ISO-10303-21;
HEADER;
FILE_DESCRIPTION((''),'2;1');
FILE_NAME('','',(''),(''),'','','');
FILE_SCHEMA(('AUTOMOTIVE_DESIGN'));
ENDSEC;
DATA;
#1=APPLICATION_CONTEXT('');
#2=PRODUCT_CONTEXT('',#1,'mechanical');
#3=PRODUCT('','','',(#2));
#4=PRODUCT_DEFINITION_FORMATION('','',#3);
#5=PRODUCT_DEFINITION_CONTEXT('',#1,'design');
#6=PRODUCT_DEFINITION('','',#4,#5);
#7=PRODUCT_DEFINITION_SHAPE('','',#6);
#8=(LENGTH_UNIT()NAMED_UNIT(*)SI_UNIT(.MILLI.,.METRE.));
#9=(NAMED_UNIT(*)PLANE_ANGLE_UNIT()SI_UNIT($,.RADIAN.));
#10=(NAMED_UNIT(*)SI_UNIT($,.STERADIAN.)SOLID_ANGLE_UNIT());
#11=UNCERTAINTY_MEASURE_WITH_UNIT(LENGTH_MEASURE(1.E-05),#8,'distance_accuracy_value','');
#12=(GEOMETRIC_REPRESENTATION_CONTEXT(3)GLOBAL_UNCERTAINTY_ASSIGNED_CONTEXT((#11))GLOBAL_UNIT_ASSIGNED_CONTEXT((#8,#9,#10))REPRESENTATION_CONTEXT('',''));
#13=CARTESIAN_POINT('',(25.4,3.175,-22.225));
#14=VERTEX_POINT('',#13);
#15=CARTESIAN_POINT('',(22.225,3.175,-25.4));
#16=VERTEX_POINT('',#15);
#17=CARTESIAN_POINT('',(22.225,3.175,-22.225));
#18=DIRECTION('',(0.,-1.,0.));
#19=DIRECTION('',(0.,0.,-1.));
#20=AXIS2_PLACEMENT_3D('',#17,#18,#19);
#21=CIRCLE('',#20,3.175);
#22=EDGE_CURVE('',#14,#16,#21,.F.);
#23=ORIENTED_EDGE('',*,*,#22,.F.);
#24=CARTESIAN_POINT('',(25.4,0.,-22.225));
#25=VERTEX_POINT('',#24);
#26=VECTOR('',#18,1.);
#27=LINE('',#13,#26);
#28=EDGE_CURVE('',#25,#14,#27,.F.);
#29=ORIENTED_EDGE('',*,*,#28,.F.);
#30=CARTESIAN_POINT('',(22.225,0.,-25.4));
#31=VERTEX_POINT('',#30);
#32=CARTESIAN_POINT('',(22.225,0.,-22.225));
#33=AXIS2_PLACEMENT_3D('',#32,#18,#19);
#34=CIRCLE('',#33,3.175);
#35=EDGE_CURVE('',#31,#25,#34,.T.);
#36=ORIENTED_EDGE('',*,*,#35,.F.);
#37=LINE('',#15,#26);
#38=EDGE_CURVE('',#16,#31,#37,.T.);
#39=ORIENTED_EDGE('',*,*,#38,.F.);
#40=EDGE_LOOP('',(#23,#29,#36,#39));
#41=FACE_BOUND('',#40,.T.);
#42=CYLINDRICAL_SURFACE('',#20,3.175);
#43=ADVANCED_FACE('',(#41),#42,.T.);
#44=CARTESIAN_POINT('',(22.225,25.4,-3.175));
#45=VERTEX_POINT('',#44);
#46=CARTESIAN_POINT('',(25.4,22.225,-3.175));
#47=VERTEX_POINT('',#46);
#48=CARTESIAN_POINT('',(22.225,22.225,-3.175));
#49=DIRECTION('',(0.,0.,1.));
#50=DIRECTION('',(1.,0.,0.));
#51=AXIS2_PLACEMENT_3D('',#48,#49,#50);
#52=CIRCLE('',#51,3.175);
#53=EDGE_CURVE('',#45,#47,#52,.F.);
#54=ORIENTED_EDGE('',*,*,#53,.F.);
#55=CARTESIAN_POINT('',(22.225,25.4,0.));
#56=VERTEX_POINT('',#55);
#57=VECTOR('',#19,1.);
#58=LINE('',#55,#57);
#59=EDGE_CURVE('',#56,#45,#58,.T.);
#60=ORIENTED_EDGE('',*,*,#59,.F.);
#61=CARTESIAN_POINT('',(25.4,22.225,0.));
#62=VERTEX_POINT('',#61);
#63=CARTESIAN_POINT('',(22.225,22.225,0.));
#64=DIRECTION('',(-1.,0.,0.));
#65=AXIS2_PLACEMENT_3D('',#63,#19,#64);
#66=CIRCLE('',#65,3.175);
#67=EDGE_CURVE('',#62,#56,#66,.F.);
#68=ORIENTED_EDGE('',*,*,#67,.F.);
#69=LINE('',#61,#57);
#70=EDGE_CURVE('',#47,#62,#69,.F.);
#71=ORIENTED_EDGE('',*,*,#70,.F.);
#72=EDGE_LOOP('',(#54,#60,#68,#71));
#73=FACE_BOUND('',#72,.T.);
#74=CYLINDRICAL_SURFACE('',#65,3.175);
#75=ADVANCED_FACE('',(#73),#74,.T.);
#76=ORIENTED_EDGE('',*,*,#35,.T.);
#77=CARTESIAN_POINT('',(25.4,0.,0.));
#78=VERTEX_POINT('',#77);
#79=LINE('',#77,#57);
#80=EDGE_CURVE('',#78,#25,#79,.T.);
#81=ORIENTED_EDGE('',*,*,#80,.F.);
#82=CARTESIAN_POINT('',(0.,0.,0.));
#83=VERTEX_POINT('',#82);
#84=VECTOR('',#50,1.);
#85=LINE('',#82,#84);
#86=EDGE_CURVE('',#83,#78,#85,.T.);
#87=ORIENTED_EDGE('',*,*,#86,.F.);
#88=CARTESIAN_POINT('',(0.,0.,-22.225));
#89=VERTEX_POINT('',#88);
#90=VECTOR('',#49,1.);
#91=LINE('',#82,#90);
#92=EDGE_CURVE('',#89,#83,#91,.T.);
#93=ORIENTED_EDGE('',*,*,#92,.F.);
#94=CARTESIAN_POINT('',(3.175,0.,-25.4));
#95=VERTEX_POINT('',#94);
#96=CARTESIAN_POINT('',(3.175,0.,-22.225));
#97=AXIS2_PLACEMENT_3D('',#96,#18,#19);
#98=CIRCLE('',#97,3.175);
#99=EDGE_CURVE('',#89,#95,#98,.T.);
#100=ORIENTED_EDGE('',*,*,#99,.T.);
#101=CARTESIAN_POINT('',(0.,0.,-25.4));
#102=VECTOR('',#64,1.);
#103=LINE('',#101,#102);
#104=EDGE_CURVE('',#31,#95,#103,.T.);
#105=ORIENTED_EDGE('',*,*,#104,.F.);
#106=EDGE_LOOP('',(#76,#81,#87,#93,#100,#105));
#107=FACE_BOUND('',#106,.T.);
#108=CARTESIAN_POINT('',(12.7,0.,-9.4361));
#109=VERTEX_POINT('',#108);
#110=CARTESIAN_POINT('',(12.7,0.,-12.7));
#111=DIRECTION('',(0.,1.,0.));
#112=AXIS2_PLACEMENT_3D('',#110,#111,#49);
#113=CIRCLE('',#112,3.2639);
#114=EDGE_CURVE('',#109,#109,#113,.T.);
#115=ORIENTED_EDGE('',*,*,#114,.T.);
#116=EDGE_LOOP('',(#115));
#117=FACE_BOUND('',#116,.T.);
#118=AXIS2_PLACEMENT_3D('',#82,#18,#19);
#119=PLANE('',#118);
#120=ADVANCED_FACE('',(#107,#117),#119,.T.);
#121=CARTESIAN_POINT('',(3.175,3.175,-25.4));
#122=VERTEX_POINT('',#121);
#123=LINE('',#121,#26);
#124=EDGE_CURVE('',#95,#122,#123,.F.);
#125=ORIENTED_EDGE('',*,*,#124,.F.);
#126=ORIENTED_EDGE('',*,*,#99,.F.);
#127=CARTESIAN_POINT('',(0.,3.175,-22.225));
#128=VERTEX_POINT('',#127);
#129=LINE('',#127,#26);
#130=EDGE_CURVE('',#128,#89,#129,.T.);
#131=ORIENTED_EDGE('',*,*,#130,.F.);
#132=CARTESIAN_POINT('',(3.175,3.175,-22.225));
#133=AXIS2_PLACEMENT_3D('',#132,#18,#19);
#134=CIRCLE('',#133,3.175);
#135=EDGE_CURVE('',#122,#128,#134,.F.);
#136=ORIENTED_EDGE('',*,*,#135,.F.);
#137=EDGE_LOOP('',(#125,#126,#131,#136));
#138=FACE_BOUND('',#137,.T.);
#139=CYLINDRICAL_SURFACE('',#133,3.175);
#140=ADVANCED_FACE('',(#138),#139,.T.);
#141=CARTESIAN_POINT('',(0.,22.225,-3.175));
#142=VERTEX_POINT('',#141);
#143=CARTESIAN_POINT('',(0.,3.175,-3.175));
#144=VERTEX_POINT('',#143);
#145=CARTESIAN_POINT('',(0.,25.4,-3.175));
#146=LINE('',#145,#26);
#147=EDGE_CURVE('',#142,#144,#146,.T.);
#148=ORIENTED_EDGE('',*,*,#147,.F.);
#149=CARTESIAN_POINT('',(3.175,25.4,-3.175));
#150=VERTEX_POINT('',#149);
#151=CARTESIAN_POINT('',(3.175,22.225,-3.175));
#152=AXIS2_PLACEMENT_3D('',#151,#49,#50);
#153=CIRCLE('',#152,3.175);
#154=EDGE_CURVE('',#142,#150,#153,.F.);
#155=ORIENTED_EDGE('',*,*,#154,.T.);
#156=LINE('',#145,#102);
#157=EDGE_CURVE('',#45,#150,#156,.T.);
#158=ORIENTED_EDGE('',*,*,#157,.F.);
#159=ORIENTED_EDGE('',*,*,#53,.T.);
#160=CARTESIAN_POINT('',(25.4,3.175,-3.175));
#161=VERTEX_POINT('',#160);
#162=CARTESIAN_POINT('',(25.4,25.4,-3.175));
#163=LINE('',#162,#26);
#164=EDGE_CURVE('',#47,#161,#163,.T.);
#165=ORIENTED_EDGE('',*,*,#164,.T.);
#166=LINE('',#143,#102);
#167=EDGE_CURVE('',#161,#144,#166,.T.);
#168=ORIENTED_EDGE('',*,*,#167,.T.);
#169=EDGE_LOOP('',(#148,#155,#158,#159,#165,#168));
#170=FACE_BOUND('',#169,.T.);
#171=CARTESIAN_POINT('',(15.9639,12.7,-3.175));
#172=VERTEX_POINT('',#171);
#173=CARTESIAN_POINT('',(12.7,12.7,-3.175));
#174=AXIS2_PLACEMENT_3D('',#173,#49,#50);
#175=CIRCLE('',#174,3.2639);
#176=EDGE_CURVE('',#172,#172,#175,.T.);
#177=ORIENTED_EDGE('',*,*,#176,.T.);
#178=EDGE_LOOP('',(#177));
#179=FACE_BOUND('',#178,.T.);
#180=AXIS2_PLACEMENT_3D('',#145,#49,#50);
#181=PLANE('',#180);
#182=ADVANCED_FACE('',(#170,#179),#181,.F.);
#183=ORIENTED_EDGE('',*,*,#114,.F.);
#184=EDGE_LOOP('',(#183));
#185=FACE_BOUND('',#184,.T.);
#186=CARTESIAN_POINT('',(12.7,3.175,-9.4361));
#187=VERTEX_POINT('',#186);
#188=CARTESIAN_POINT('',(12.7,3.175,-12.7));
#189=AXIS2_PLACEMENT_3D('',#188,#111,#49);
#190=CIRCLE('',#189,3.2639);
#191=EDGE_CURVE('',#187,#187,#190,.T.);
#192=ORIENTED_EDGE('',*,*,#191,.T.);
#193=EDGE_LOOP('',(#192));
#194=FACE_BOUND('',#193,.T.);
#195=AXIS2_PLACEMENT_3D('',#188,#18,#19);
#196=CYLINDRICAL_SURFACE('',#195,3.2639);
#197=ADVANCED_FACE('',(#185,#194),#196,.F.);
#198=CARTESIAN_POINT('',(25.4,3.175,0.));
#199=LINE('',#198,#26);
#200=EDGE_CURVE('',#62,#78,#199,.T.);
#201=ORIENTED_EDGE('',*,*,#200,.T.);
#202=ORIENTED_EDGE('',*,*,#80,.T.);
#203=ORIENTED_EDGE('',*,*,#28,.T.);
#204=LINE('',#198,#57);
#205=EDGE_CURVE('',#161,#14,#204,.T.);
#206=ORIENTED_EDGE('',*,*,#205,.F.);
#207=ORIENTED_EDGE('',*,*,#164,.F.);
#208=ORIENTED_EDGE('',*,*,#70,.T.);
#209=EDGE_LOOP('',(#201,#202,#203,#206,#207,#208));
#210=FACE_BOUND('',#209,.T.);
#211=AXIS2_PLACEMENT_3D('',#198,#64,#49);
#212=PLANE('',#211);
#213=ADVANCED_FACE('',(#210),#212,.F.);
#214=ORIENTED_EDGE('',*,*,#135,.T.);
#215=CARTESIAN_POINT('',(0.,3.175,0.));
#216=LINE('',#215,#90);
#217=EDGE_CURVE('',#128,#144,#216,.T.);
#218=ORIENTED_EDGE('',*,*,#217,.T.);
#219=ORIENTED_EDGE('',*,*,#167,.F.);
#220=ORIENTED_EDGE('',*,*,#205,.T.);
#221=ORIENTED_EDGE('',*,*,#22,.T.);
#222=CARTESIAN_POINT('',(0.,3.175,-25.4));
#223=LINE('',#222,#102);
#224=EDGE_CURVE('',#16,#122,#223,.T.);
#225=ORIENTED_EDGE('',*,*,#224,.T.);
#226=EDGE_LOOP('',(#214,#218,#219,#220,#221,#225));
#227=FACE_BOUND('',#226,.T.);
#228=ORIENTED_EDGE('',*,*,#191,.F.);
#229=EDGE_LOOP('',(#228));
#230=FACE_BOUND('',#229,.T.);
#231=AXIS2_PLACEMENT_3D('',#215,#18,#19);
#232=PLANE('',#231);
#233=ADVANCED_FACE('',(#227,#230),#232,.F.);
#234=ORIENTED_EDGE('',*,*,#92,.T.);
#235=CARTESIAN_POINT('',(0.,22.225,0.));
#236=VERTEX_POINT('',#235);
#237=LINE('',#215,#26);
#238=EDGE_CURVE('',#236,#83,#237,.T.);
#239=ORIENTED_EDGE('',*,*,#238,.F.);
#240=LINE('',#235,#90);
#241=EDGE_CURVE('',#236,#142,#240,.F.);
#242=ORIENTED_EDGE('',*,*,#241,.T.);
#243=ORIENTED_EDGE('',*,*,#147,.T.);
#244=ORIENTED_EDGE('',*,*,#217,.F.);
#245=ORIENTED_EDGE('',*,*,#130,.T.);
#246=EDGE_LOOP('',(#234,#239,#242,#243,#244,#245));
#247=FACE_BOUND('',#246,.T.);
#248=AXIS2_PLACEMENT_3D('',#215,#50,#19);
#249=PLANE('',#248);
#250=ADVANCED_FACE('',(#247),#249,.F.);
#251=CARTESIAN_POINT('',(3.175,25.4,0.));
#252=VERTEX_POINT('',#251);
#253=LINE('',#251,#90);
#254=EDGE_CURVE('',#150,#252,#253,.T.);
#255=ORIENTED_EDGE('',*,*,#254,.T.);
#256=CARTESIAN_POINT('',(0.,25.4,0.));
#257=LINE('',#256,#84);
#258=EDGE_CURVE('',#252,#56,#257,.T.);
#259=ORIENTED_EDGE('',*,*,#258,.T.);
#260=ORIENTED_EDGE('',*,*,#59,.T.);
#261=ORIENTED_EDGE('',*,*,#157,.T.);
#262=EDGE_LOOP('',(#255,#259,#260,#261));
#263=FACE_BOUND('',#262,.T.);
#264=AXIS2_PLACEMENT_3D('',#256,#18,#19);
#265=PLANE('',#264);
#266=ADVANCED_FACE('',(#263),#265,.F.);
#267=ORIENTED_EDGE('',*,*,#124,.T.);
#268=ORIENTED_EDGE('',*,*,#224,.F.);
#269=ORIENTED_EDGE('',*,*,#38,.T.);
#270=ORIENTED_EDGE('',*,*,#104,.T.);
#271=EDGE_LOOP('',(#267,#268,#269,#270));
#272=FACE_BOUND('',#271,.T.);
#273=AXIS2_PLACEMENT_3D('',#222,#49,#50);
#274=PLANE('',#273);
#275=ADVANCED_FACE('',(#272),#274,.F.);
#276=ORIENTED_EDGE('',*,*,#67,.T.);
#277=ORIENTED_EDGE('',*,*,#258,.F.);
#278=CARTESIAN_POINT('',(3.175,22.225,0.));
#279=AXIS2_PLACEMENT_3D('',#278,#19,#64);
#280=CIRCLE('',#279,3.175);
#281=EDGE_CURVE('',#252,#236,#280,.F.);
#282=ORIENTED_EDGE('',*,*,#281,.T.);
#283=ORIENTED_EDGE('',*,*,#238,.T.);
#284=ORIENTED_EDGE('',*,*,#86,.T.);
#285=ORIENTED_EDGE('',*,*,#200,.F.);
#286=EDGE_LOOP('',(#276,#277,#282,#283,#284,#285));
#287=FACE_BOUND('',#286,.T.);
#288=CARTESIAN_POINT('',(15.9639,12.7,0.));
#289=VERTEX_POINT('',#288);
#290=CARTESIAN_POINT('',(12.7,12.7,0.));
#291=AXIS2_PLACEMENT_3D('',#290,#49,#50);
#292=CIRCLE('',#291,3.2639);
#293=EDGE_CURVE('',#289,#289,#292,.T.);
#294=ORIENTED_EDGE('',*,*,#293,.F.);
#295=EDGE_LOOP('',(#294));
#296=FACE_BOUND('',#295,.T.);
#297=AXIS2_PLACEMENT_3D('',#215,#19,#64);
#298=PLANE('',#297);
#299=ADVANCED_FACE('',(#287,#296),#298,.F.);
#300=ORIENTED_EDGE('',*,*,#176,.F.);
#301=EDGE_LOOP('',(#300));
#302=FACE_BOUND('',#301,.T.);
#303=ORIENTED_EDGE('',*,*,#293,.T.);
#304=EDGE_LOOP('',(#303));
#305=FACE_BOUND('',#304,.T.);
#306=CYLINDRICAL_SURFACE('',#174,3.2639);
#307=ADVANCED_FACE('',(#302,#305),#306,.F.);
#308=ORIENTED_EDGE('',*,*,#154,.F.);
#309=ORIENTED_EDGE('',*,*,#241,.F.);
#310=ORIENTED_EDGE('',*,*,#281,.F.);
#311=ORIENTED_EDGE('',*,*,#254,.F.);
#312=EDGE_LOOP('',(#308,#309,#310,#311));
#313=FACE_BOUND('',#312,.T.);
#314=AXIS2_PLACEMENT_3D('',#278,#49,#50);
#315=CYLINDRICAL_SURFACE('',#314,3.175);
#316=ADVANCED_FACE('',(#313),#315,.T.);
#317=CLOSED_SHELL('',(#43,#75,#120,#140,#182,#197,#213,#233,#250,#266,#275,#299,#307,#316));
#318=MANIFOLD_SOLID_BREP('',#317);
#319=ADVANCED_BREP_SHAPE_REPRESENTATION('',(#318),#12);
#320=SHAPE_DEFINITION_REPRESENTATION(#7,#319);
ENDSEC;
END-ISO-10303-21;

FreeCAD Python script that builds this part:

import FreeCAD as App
import Part
import Sketcher
from FreeCAD import Vector
Q = App.Units.Quantity


def edges_at(feature, points):
    """Names of the edges that pass closest to the given points."""
    edges = feature.Shape.Edges
    near = lambda p: min(range(len(edges)), key=lambda i: edges[i].distToShape(Part.Vertex(*p))[0])
    return sorted({f"Edge{near(p) + 1}" for p in points})

doc = App.newDocument("Part")
body = doc.addObject("PartDesign::Body", "Body")

# Sketch on XZ plane
sketch1 = doc.addObject("Sketcher::SketchObject", "Sketch")
body.addObject(sketch1)
sketch1.AttachmentSupport = (doc.XZ_Plane, [""])
sketch1.MapMode = "FlatFace"
sketch1.addGeometry(Part.LineSegment(Vector(0, -25.4, 0), Vector(0, 0, 0)), False)
sketch1.addGeometry(Part.LineSegment(Vector(0, 0, 0), Vector(25.4, 0, 0)), False)
sketch1.addGeometry(Part.LineSegment(Vector(25.4, 0, 0), Vector(25.4, -25.4, 0)), False)
sketch1.addGeometry(Part.LineSegment(Vector(25.4, -25.4, 0), Vector(0, -25.4, 0)), False)
sketch1.addGeometry(Part.Circle(Vector(12.7, -12.7, 0), Vector(0, 0, 1), 3.3), False)
sketch1.addConstraint(Sketcher.Constraint("Coincident", 0, 2, 1, 1))
sketch1.addConstraint(Sketcher.Constraint("Coincident", 1, 2, 2, 1))
sketch1.addConstraint(Sketcher.Constraint("Coincident", 2, 2, 3, 1))
sketch1.addConstraint(Sketcher.Constraint("Coincident", 3, 2, 0, 1))
sketch1.addConstraint(Sketcher.Constraint("Vertical", 0))
sketch1.addConstraint(Sketcher.Constraint("Horizontal", 1))
sketch1.addConstraint(Sketcher.Constraint("Vertical", 2))
sketch1.addConstraint(Sketcher.Constraint("Horizontal", 3))
sketch1.addConstraint(Sketcher.Constraint("Coincident", 0, 2, -1, 1))
sketch1.addConstraint(Sketcher.Constraint("Equal", 3, 0))
sketch1.addConstraint(Sketcher.Constraint("DistanceX", 1, 1, 1, 2, Q("1 in")))
sketch1.addConstraint(Sketcher.Constraint("Diameter", 4, Q("0.257 in")))
sketch1.addConstraint(Sketcher.Constraint("DistanceX", -1, 1, 4, 3, Q("0.5 in")))
sketch1.addConstraint(Sketcher.Constraint("DistanceY", 4, 3, -1, 1, Q("0.5 in")))
pad1 = doc.addObject("PartDesign::Pad", "Pad")
body.addObject(pad1)
pad1.Profile = sketch1
pad1.Length = Q("0.125 in")
pad1.Reversed = True

# Sketch on XZ plane
sketch2 = doc.addObject("Sketcher::SketchObject", "Sketch001")
body.addObject(sketch2)
sketch2.AttachmentSupport = (doc.XZ_Plane, [""])
sketch2.MapMode = "FlatFace"
sketch2.AttachmentOffset = App.Placement(Vector(0, 0, -0.125 * 25.4), App.Rotation())
sketch2.addGeometry(Part.LineSegment(Vector(0, -3.2, 0), Vector(0, 0, 0)), False)
sketch2.addGeometry(Part.LineSegment(Vector(0, 0, 0), Vector(25.4, 0, 0)), False)
sketch2.addGeometry(Part.LineSegment(Vector(25.4, 0, 0), Vector(25.4, -3.2, 0)), False)
sketch2.addGeometry(Part.LineSegment(Vector(25.4, -3.2, 0), Vector(0, -3.2, 0)), False)
sketch2.addConstraint(Sketcher.Constraint("Coincident", 0, 2, 1, 1))
sketch2.addConstraint(Sketcher.Constraint("Coincident", 1, 2, 2, 1))
sketch2.addConstraint(Sketcher.Constraint("Coincident", 2, 2, 3, 1))
sketch2.addConstraint(Sketcher.Constraint("Coincident", 3, 2, 0, 1))
sketch2.addConstraint(Sketcher.Constraint("Vertical", 0))
sketch2.addConstraint(Sketcher.Constraint("Horizontal", 1))
sketch2.addConstraint(Sketcher.Constraint("Vertical", 2))
sketch2.addConstraint(Sketcher.Constraint("Horizontal", 3))
sketch2.addConstraint(Sketcher.Constraint("Coincident", 0, 2, -1, 1))
sketch2.addConstraint(Sketcher.Constraint("DistanceX", 1, 1, 1, 2, Q("1 in")))
sketch2.addConstraint(Sketcher.Constraint("DistanceY", 0, 1, 0, 2, Q("0.125 in")))
pad2 = doc.addObject("PartDesign::Pad", "Pad001")
body.addObject(pad2)
pad2.Profile = sketch2
pad2.Length = Q("0.875 in")
pad2.Reversed = True

# Sketch on XY plane
sketch3 = doc.addObject("Sketcher::SketchObject", "Sketch002")
body.addObject(sketch3)
sketch3.AttachmentSupport = (doc.XY_Plane, [""])
sketch3.MapMode = "FlatFace"
sketch3.addGeometry(Part.Circle(Vector(12.7, 12.7, 0), Vector(0, 0, 1), 3.3), False)
sketch3.addConstraint(Sketcher.Constraint("Diameter", 0, Q("0.257 in")))
sketch3.addConstraint(Sketcher.Constraint("DistanceX", -1, 1, 0, 3, Q("0.5 in")))
sketch3.addConstraint(Sketcher.Constraint("DistanceY", -1, 1, 0, 3, Q("0.5 in")))
pocket1 = doc.addObject("PartDesign::Pocket", "Pocket")
body.addObject(pocket1)
pocket1.Profile = sketch3
pocket1.Length = Q("0.125 in")
doc.recompute()

fillet = doc.addObject("PartDesign::Fillet", "Fillet")
body.addObject(fillet)
fillet.Base = (pocket1, edges_at(pocket1, [
    (0, 25.4, -1.587),
    (25.4, 25.4, -1.587),
    (0, 1.587, -25.4),
    (25.4, 1.587, -25.4),
]))
fillet.Radius = Q("0.125 in")

doc.recompute()
